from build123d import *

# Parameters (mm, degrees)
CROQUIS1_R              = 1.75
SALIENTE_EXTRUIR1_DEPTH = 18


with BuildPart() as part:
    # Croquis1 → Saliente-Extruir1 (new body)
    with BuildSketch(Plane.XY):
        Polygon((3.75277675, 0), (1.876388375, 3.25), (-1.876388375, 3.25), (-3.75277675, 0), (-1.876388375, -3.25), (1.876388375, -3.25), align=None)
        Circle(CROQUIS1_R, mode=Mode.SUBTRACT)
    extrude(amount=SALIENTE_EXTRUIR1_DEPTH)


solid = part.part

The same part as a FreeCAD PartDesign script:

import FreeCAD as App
import Part
import Sketcher

V = App.Vector
Q = App.Units.Quantity

doc = App.newDocument("Part")
body = doc.addObject("PartDesign::Body", "Body")

sketch1 = body.newObject("Sketcher::SketchObject", "Sketch")
sketch1.AttachmentSupport = (doc.getObject("XY_Plane"), [""])
sketch1.MapMode = "FlatFace"
sketch1.addGeometry([
    Part.LineSegment(V(3.8, 0, 0), V(1.9, 3.2, 0)),
    Part.LineSegment(V(1.9, 3.2, 0), V(-1.9, 3.2, 0)),
    Part.LineSegment(V(-1.9, 3.2, 0), V(-3.8, 0, 0)),
    Part.LineSegment(V(-3.8, 0, 0), V(-1.9, -3.2, 0)),
    Part.LineSegment(V(-1.9, -3.2, 0), V(1.9, -3.2, 0)),
    Part.LineSegment(V(1.9, -3.2, 0), V(3.8, 0, 0)),
    Part.Circle(V(0, 0, 0), V(0, 0, 1), 1.8),
], False)
sketch1.addConstraint([
    Sketcher.Constraint("Coincident", 0, 2, 1, 1),
    Sketcher.Constraint("Coincident", 1, 2, 2, 1),
    Sketcher.Constraint("Coincident", 2, 2, 3, 1),
    Sketcher.Constraint("Coincident", 3, 2, 4, 1),
    Sketcher.Constraint("Coincident", 4, 2, 5, 1),
    Sketcher.Constraint("Coincident", 5, 2, 0, 1),
    Sketcher.Constraint("Horizontal", 1),
    Sketcher.Constraint("Horizontal", 4),
    Sketcher.Constraint("Coincident", 6, 3, -1, 1),
    Sketcher.Constraint("Symmetric", 0, 2, 3, 2, -1, 1),
    Sketcher.Constraint("Symmetric", 2, 2, 5, 2, -1, 1),
    Sketcher.Constraint("PointOnObject", 2, 2, -1),
    Sketcher.Constraint("Parallel", 2, 5),
    Sketcher.Constraint("Vertical", 1, 2, 3, 2),
    Sketcher.Constraint("Diameter", 6, Q("3.5 mm")),
    Sketcher.Constraint("Angle", 0, Q("120 deg")),
    Sketcher.Constraint("DistanceY", 3, 2, 1, 2, Q("6.5 mm")),
    Sketcher.Constraint("DistanceX", 1, 2, 1, 1, Q("3.752777 mm")),
])
pad1 = body.newObject("PartDesign::Pad", "Pad")
pad1.Profile = sketch1
pad1.Length = 18

doc.recompute()
